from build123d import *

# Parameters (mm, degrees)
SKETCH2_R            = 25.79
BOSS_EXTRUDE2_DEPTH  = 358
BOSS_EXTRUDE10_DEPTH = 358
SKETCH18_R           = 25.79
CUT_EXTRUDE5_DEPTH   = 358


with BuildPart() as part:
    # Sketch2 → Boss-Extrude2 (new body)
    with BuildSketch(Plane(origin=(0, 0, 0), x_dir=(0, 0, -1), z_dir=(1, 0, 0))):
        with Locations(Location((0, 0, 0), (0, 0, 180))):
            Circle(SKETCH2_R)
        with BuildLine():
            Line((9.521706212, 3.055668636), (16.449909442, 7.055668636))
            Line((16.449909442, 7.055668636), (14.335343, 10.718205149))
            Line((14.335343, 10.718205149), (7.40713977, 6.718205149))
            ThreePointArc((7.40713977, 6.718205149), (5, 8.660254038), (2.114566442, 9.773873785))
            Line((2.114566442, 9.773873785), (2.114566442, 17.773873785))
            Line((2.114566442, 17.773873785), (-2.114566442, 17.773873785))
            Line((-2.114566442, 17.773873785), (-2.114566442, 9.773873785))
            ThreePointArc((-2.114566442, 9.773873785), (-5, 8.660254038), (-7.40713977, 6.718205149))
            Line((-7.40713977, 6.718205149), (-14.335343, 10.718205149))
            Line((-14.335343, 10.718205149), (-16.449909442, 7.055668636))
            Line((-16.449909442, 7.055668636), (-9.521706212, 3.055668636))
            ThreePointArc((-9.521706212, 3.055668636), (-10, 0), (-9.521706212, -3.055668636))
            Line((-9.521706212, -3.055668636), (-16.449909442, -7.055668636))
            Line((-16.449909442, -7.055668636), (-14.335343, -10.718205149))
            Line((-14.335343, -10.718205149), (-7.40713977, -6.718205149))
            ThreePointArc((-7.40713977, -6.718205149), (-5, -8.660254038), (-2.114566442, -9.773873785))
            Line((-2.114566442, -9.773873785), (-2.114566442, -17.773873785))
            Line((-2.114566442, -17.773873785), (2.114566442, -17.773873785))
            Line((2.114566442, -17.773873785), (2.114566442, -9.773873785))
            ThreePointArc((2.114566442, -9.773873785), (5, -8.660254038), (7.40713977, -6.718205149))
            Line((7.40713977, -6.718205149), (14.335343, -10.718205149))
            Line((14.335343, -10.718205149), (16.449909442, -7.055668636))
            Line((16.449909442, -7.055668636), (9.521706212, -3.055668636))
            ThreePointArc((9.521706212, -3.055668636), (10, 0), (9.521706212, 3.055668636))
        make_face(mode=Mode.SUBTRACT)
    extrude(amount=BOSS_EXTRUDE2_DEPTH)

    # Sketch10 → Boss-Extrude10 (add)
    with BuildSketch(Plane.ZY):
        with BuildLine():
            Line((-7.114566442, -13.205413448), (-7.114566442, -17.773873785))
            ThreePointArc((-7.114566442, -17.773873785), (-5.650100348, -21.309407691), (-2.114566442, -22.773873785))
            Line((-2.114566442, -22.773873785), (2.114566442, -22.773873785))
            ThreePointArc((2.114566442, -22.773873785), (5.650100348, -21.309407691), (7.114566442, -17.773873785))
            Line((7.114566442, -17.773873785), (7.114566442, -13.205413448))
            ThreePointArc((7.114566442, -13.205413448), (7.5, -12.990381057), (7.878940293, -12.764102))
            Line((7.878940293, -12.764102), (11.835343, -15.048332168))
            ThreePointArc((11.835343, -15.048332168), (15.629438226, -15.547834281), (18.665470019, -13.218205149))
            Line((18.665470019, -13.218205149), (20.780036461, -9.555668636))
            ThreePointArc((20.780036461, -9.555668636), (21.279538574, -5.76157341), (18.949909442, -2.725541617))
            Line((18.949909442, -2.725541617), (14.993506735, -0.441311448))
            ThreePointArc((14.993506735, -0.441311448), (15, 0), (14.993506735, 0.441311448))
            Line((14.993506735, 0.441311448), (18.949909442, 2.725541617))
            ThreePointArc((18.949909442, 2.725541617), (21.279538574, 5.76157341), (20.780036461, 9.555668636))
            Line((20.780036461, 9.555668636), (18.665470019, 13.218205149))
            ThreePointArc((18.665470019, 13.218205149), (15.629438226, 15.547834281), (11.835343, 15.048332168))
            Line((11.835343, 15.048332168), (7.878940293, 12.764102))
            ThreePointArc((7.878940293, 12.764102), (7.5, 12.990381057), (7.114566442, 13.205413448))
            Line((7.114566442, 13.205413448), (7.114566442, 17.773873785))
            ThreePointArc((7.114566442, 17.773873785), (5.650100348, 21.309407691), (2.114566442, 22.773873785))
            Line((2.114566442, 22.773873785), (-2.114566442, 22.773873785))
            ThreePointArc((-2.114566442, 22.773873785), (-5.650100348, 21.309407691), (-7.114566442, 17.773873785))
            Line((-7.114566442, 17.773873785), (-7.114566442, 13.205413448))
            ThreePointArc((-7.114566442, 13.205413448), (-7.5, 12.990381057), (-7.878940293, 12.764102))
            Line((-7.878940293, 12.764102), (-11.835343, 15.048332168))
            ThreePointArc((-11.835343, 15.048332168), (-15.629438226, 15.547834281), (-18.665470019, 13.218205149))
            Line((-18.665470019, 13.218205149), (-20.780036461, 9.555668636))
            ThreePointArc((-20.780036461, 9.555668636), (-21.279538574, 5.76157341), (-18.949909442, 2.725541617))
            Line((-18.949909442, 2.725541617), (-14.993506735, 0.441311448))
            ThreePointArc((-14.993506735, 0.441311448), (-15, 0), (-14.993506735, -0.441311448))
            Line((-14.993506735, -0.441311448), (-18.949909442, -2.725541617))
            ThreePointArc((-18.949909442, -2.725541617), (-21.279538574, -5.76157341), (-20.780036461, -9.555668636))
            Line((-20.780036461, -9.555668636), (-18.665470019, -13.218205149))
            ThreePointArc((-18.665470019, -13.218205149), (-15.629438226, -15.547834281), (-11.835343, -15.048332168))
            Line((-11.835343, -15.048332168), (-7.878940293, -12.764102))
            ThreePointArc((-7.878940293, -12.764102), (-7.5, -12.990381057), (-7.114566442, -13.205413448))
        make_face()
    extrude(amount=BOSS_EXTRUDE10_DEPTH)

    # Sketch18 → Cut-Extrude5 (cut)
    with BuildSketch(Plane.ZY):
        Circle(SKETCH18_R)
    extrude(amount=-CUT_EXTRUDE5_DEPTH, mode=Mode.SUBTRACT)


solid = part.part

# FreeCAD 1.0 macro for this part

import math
import FreeCAD as App
import Part
import Sketcher

V = App.Vector
Q = App.Units.Quantity

doc = App.newDocument("Part")
params = doc.addObject("Spreadsheet::Sheet", "Params")
for row, (alias, value) in enumerate([
    ("sketch1_radius", "10 mm"),
    ("sketch1_diameter", "51.58 mm"),
    ("sketch1_width", "8 mm"),
    ("sketch1_length", "8 mm"),
    ("pad1_length", "358 mm"),
    ("sketch2_radius", "5 mm"),
    ("sketch2_radius2", "14.999999 mm"),
    ("pad2_length", "358 mm"),
    ("sketch3_diameter", "51.58 mm"),
    ("pocket1_length", "358 mm"),
], start=1):
    params.set(f"A{row}", alias)
    params.set(f"B{row}", "=" + value)
    params.setAlias(f"B{row}", alias)

body = doc.addObject("PartDesign::Body", "Body")

# Sketch on YZ plane
sketch1 = doc.addObject("Sketcher::SketchObject", "Sketch")
body.addObject(sketch1)
sketch1.AttachmentSupport = (doc.YZ_Plane, [""])
sketch1.MapMode = "FlatFace"
sketch1.addGeometry([
    Part.Circle(V(0, 0, 0), V(0, 0, 1), 25.79),  # 0
    Part.LineSegment(V(7.055669, -16.449909, 0), V(3.055669, -9.521706, 0)),  # 1
    Part.ArcOfCircle(Part.Circle(V(0, 0, 0), V(0, 0, 1), 10), math.radians(-107.792271), math.radians(-72.207729)),  # 2
    Part.LineSegment(V(-3.055669, -9.521706, 0), V(-7.055669, -16.449909, 0)),  # 3
    Part.LineSegment(V(-7.055669, -16.449909, 0), V(-10.718205, -14.335343, 0)),  # 4
    Part.LineSegment(V(-10.718205, -14.335343, 0), V(-6.718205, -7.40714, 0)),  # 5
    Part.ArcOfCircle(Part.Circle(V(0, 0, 0), V(0, 0, 1), 10), math.radians(-167.792271), math.radians(-132.207729)),  # 6
    Part.LineSegment(V(-9.773874, -2.114566, 0), V(-17.773874, -2.114566, 0)),  # 7
    Part.LineSegment(V(-17.773874, -2.114566, 0), V(-17.773874, 2.114566, 0)),  # 8
    Part.LineSegment(V(-17.773874, 2.114566, 0), V(-9.773874, 2.114566, 0)),  # 9
    Part.ArcOfCircle(Part.Circle(V(0, 0, 0), V(0, 0, 1), 10), math.radians(132.207729), math.radians(167.792271)),  # 10
    Part.LineSegment(V(-6.718205, 7.40714, 0), V(-10.718205, 14.335343, 0)),  # 11
    Part.LineSegment(V(-10.718205, 14.335343, 0), V(-7.055669, 16.449909, 0)),  # 12
    Part.LineSegment(V(-7.055669, 16.449909, 0), V(-3.055669, 9.521706, 0)),  # 13
    Part.ArcOfCircle(Part.Circle(V(0, 0, 0), V(0, 0, 1), 10), math.radians(72.207729), math.radians(107.792271)),  # 14
    Part.LineSegment(V(3.055669, 9.521706, 0), V(7.055669, 16.449909, 0)),  # 15
    Part.LineSegment(V(7.055669, 16.449909, 0), V(10.718205, 14.335343, 0)),  # 16
    Part.LineSegment(V(10.718205, 14.335343, 0), V(6.718205, 7.40714, 0)),  # 17
    Part.ArcOfCircle(Part.Circle(V(0, 0, 0), V(0, 0, 1), 10), math.radians(12.207729), math.radians(47.792271)),  # 18
    Part.LineSegment(V(9.773874, 2.114566, 0), V(17.773874, 2.114566, 0)),  # 19
    Part.LineSegment(V(17.773874, 2.114566, 0), V(17.773874, -2.114566, 0)),  # 20
    Part.LineSegment(V(17.773874, -2.114566, 0), V(9.773874, -2.114566, 0)),  # 21
    Part.ArcOfCircle(Part.Circle(V(0, 0, 0), V(0, 0, 1), 10), math.radians(-47.792271), math.radians(-12.207729)),  # 22
    Part.LineSegment(V(6.718205, -7.40714, 0), V(10.718205, -14.335343, 0)),  # 23
    Part.LineSegment(V(10.718205, -14.335343, 0), V(7.055669, -16.449909, 0)),  # 24
], False)
sketch1.addConstraint([
    Sketcher.Constraint("Coincident", 1, 2, 2, 2),
    Sketcher.Constraint("Coincident", 2, 1, 3, 1),
    Sketcher.Constraint("Coincident", 3, 2, 4, 1),
    Sketcher.Constraint("Coincident", 4, 2, 5, 1),
    Sketcher.Constraint("Coincident", 5, 2, 6, 2),
    Sketcher.Constraint("Coincident", 6, 1, 7, 1),
    Sketcher.Constraint("Coincident", 7, 2, 8, 1),
    Sketcher.Constraint("Coincident", 8, 2, 9, 1),
    Sketcher.Constraint("Coincident", 9, 2, 10, 2),
    Sketcher.Constraint("Coincident", 10, 1, 11, 1),
    Sketcher.Constraint("Coincident", 11, 2, 12, 1),
    Sketcher.Constraint("Coincident", 12, 2, 13, 1),
    Sketcher.Constraint("Coincident", 13, 2, 14, 2),
    Sketcher.Constraint("Coincident", 14, 1, 15, 1),
    Sketcher.Constraint("Coincident", 15, 2, 16, 1),
    Sketcher.Constraint("Coincident", 16, 2, 17, 1),
    Sketcher.Constraint("Coincident", 17, 2, 18, 2),
    Sketcher.Constraint("Coincident", 18, 1, 19, 1),
    Sketcher.Constraint("Coincident", 19, 2, 20, 1),
    Sketcher.Constraint("Coincident", 20, 2, 21, 1),
    Sketcher.Constraint("Coincident", 21, 2, 22, 2),
    Sketcher.Constraint("Coincident", 22, 1, 23, 1),
    Sketcher.Constraint("Coincident", 23, 2, 24, 1),
    Sketcher.Constraint("Coincident", 24, 2, 1, 1),
    Sketcher.Constraint("Horizontal", 7),
    Sketcher.Constraint("Vertical", 8),
    Sketcher.Constraint("Horizontal", 9),
    Sketcher.Constraint("Horizontal", 19),
    Sketcher.Constraint("Vertical", 20),
    Sketcher.Constraint("Horizontal", 21),
    Sketcher.Constraint("Coincident", 0, 3, -1, 1),
    Sketcher.Constraint("Coincident", 2, 3, -1, 1),
    Sketcher.Constraint("Coincident", 6, 3, -1, 1),
    Sketcher.Constraint("Coincident", 10, 3, -1, 1),
    Sketcher.Constraint("Coincident", 14, 3, -1, 1),
    Sketcher.Constraint("Coincident", 18, 3, -1, 1),
    Sketcher.Constraint("Coincident", 22, 3, -1, 1),
    Sketcher.Constraint("Equal", 2, 6),
    Sketcher.Constraint("Equal", 6, 10),
    Sketcher.Constraint("Equal", 10, 14),
    Sketcher.Constraint("Equal", 14, 18),
    Sketcher.Constraint("Equal", 18, 22),
    Sketcher.Constraint("Symmetric", 3, 2, 15, 2, -1, 1),
    Sketcher.Constraint("Symmetric", 4, 2, 16, 2, -1, 1),
    Sketcher.Constraint("Symmetric", 7, 2, 19, 2, -1, 1),
    Sketcher.Constraint("Symmetric", 11, 2, 23, 2, -1, 1),
    Sketcher.Constraint("Symmetric", 12, 2, 24, 2, -1, 1),
    Sketcher.Constraint("Symmetric", 12, 2, 15, 2, -2),
    Sketcher.Constraint("Symmetric", 11, 2, 16, 2, -2),
    Sketcher.Constraint("Perpendicular", 3, 4),
    Sketcher.Constraint("Perpendicular", 4, 5),
    Sketcher.Constraint("Parallel", 1, 11),
    Sketcher.Constraint("Perpendicular", 11, 12),
    Sketcher.Constraint("Perpendicular", 12, 13),
    Sketcher.Constraint("Parallel", 5, 15),
    Sketcher.Constraint("Perpendicular", 16, 17),
    Sketcher.Constraint("Parallel", 13, 23),
    Sketcher.Constraint("Horizontal", 9, 2, 18, 1),
    Sketcher.Constraint("Horizontal", 7, 2, 20, 2),
    Sketcher.Constraint("Equal", 3, 5),
    Sketcher.Constraint("Radius", 2, Q("10 mm")),
    Sketcher.Constraint("Diameter", 0, Q("51.58 mm")),
    Sketcher.Constraint("DistanceX", 7, 2, 7, 1, Q("8 mm")),
    Sketcher.Constraint("Angle", 1, Q("120 deg")),
    Sketcher.Constraint("Distance", 1, Q("8 mm")),
    Sketcher.Constraint("DistanceY", 8, 1, 8, 2, Q("4.229133 mm")),
    Sketcher.Constraint("DistanceX", -1, 1, 1, 2, Q("3.055669 mm")),
])
sketch1.setExpression("Constraints[60]", "Params.sketch1_radius")
sketch1.setExpression("Constraints[61]", "Params.sketch1_diameter")
sketch1.setExpression("Constraints[62]", "Params.sketch1_width")
sketch1.setExpression("Constraints[64]", "Params.sketch1_length")
pad1 = doc.addObject("PartDesign::Pad", "Pad")
body.addObject(pad1)
pad1.Profile = sketch1
pad1.setExpression("Length", "Params.pad1_length")

# Sketch on YZ plane
sketch2 = doc.addObject("Sketcher::SketchObject", "Sketch001")
body.addObject(sketch2)
sketch2.AttachmentSupport = (doc.YZ_Plane, [""])
sketch2.MapMode = "FlatFace"
sketch2.addGeometry([
    Part.LineSegment(V(-13.205413, -7.114566, 0), V(-17.773874, -7.114566, 0)),  # 0
    Part.ArcOfCircle(Part.Circle(V(-17.773874, -2.114566, 0), V(0, 0, 1), 5), math.radians(180), math.radians(270)),  # 1
    Part.LineSegment(V(-22.773874, -2.114566, 0), V(-22.773874, 2.114566, 0)),  # 2
    Part.ArcOfCircle(Part.Circle(V(-17.773874, 2.114566, 0), V(0, 0, 1), 5), math.radians(90), math.radians(180)),  # 3
    Part.LineSegment(V(-17.773874, 7.114566, 0), V(-13.205413, 7.114566, 0)),  # 4
    Part.ArcOfCircle(Part.Circle(V(0, 0, 0), V(0, 0, 1), 14.999999), math.radians(148.314071), math.radians(151.685929)),  # 5
    Part.LineSegment(V(-12.764102, 7.87894, 0), V(-15.048332, 11.835343, 0)),  # 6
    Part.ArcOfCircle(Part.Circle(V(-10.718205, 14.335343, 0), V(0, 0, 1), 5), math.radians(120), math.radians(210)),  # 7
    Part.LineSegment(V(-13.218205, 18.66547, 0), V(-9.555669, 20.780036, 0)),  # 8
    Part.ArcOfCircle(Part.Circle(V(-7.055669, 16.449909, 0), V(0, 0, 1), 5), math.radians(30), math.radians(120)),  # 9
    Part.LineSegment(V(-2.725542, 18.949909, 0), V(-0.441311, 14.993507, 0)),  # 10
    Part.ArcOfCircle(Part.Circle(V(0, -0.000001, 0), V(0, 0, 1), 15.000001), math.radians(88.314071), math.radians(91.685929)),  # 11
    Part.LineSegment(V(0.441311, 14.993507, 0), V(2.725542, 18.949909, 0)),  # 12
    Part.ArcOfCircle(Part.Circle(V(7.055669, 16.449909, 0), V(0, 0, 1), 5), math.radians(60), math.radians(150)),  # 13
    Part.LineSegment(V(9.555669, 20.780036, 0), V(13.218205, 18.66547, 0)),  # 14
    Part.ArcOfCircle(Part.Circle(V(10.718205, 14.335343, 0), V(0, 0, 1), 5), math.radians(-30), math.radians(60)),  # 15
    Part.LineSegment(V(15.048332, 11.835343, 0), V(12.764102, 7.87894, 0)),  # 16
    Part.ArcOfCircle(Part.Circle(V(0, 0, 0), V(0, 0, 1), 14.999999), math.radians(28.314071), math.radians(31.685929)),  # 17
    Part.LineSegment(V(13.205413, 7.114566, 0), V(17.773874, 7.114566, 0)),  # 18
    Part.ArcOfCircle(Part.Circle(V(17.773874, 2.114566, 0), V(0, 0, 1), 5), math.radians(0), math.radians(90)),  # 19
    Part.LineSegment(V(22.773874, 2.114566, 0), V(22.773874, -2.114566, 0)),  # 20
    Part.ArcOfCircle(Part.Circle(V(17.773874, -2.114566, 0), V(0, 0, 1), 5), math.radians(-90), math.radians(0)),  # 21
    Part.LineSegment(V(17.773874, -7.114566, 0), V(13.205413, -7.114566, 0)),  # 22
    Part.ArcOfCircle(Part.Circle(V(0, 0, 0), V(0, 0, 1), 14.999999), math.radians(-31.685929), math.radians(-28.314071)),  # 23
    Part.LineSegment(V(12.764102, -7.87894, 0), V(15.048332, -11.835343, 0)),  # 24
    Part.ArcOfCircle(Part.Circle(V(10.718205, -14.335343, 0), V(0, 0, 1), 5), math.radians(-60), math.radians(30)),  # 25
    Part.LineSegment(V(13.218205, -18.66547, 0), V(9.555669, -20.780036, 0)),  # 26
    Part.ArcOfCircle(Part.Circle(V(7.055669, -16.449909, 0), V(0, 0, 1), 5), math.radians(-150), math.radians(-60)),  # 27
    Part.LineSegment(V(2.725542, -18.949909, 0), V(0.441311, -14.993507, 0)),  # 28
    Part.ArcOfCircle(Part.Circle(V(0, 0.000001, 0), V(0, 0, 1), 15.000001), math.radians(-91.685929), math.radians(-88.314071)),  # 29
    Part.LineSegment(V(-0.441311, -14.993507, 0), V(-2.725542, -18.949909, 0)),  # 30
    Part.ArcOfCircle(Part.Circle(V(-7.055669, -16.449909, 0), V(0, 0, 1), 5), math.radians(-120), math.radians(-30)),  # 31
    Part.LineSegment(V(-9.555669, -20.780036, 0), V(-13.218205, -18.66547, 0)),  # 32
    Part.ArcOfCircle(Part.Circle(V(-10.718205, -14.335343, 0), V(0, 0, 1), 5), math.radians(150), math.radians(240)),  # 33
    Part.LineSegment(V(-15.048332, -11.835343, 0), V(-12.764102, -7.87894, 0)),  # 34
    Part.ArcOfCircle(Part.Circle(V(0, 0, 0), V(0, 0, 1), 14.999999), math.radians(-151.685929), math.radians(-148.314071)),  # 35
], False)
sketch2.addConstraint([
    Sketcher.Constraint("Tangent", 0, 2, 1, 2),
    Sketcher.Constraint("Tangent", 1, 1, 2, 1),
    Sketcher.Constraint("Tangent", 2, 2, 3, 2),
    Sketcher.Constraint("Tangent", 3, 1, 4, 1),
    Sketcher.Constraint("Coincident", 4, 2, 5, 2),
    Sketcher.Constraint("Coincident", 5, 1, 6, 1),
    Sketcher.Constraint("Tangent", 6, 2, 7, 2),
    Sketcher.Constraint("Tangent", 7, 1, 8, 1),
    Sketcher.Constraint("Tangent", 8, 2, 9, 2),
    Sketcher.Constraint("Tangent", 9, 1, 10, 1),
    Sketcher.Constraint("Coincident", 10, 2, 11, 2),
    Sketcher.Constraint("Coincident", 11, 1, 12, 1),
    Sketcher.Constraint("Tangent", 12, 2, 13, 2),
    Sketcher.Constraint("Tangent", 13, 1, 14, 1),
    Sketcher.Constraint("Tangent", 14, 2, 15, 2),
    Sketcher.Constraint("Tangent", 15, 1, 16, 1),
    Sketcher.Constraint("Coincident", 16, 2, 17, 2),
    Sketcher.Constraint("Coincident", 17, 1, 18, 1),
    Sketcher.Constraint("Tangent", 18, 2, 19, 2),
    Sketcher.Constraint("Tangent", 19, 1, 20, 1),
    Sketcher.Constraint("Tangent", 20, 2, 21, 2),
    Sketcher.Constraint("Tangent", 21, 1, 22, 1),
    Sketcher.Constraint("Coincident", 22, 2, 23, 2),
    Sketcher.Constraint("Coincident", 23, 1, 24, 1),
    Sketcher.Constraint("Tangent", 24, 2, 25, 2),
    Sketcher.Constraint("Tangent", 25, 1, 26, 1),
    Sketcher.Constraint("Tangent", 26, 2, 27, 2),
    Sketcher.Constraint("Tangent", 27, 1, 28, 1),
    Sketcher.Constraint("Coincident", 28, 2, 29, 2),
    Sketcher.Constraint("Coincident", 29, 1, 30, 1),
    Sketcher.Constraint("Tangent", 30, 2, 31, 2),
    Sketcher.Constraint("Tangent", 31, 1, 32, 1),
    Sketcher.Constraint("Tangent", 32, 2, 33, 2),
    Sketcher.Constraint("Tangent", 33, 1, 34, 1),
    Sketcher.Constraint("Coincident", 34, 2, 35, 2),
    Sketcher.Constraint("Coincident", 35, 1, 0, 1),
    Sketcher.Constraint("Horizontal", 0),
    Sketcher.Constraint("Vertical", 2),
    Sketcher.Constraint("Horizontal", 4),
    Sketcher.Constraint("Horizontal", 18),
    Sketcher.Constraint("Vertical", 20),
    Sketcher.Constraint("Horizontal", 22),
    Sketcher.Constraint("Coincident", 5, 3, -1, 1),
    Sketcher.Constraint("Coincident", 11, 3, -1, 1),
    Sketcher.Constraint("Coincident", 17, 3, -1, 1),
    Sketcher.Constraint("Coincident", 23, 3, -1, 1),
    Sketcher.Constraint("Coincident", 29, 3, -1, 1),
    Sketcher.Constraint("Coincident", 35, 3, -1, 1),
    Sketcher.Constraint("Equal", 1, 3),
    Sketcher.Constraint("Equal", 3, 7),
    Sketcher.Constraint("Equal", 7, 9),
    Sketcher.Constraint("Equal", 5, 11),
    Sketcher.Constraint("Equal", 9, 13),
    Sketcher.Constraint("Equal", 13, 15),
    Sketcher.Constraint("Equal", 11, 17),
    Sketcher.Constraint("Equal", 15, 19),
    Sketcher.Constraint("Equal", 19, 21),
    Sketcher.Constraint("Equal", 17, 23),
    Sketcher.Constraint("Equal", 21, 25),
    Sketcher.Constraint("Equal", 25, 27),
    Sketcher.Constraint("Equal", 23, 29),
    Sketcher.Constraint("Equal", 27, 31),
    Sketcher.Constraint("Equal", 31, 33),
    Sketcher.Constraint("Equal", 29, 35),
    Sketcher.Constraint("Symmetric", 1, 3, 19, 3, -1, 1),
    Sketcher.Constraint("Symmetric", 7, 3, 25, 3, -1, 1),
    Sketcher.Constraint("Symmetric", 9, 3, 27, 3, -1, 1),
    Sketcher.Constraint("Symmetric", 13, 3, 31, 3, -1, 1),
    Sketcher.Constraint("Symmetric", 15, 3, 33, 3, -1, 1),
    Sketcher.Constraint("Symmetric", 9, 3, 13, 3, -2),
    Sketcher.Constraint("Symmetric", 7, 3, 15, 3, -2),
    Sketcher.Constraint("Perpendicular", 6, 8),
    Sketcher.Constraint("Perpendicular", 8, 10),
    Sketcher.Constraint("Perpendicular", 12, 14),
    Sketcher.Constraint("Perpendicular", 14, 16),
    Sketcher.Constraint("Parallel", 10, 24),
    Sketcher.Constraint("Perpendicular", 26, 28),
    Sketcher.Constraint("Parallel", 16, 30),
    Sketcher.Constraint("Perpendicular", 32, 34),
    Sketcher.Constraint("Horizontal", 3, 3, 19, 3),
    Sketcher.Constraint("Horizontal", 1, 3, 21, 3),
    Sketcher.Constraint("Equal", 6, 10),
    Sketcher.Constraint("Radius", 1, Q("5 mm")),
    Sketcher.Constraint("Radius", 5, Q("14.999999 mm")),
    Sketcher.Constraint("Angle", 6, Q("120 deg")),
    Sketcher.Constraint("DistanceX", 0, 2, 0, 1, Q("4.56846 mm")),
    Sketcher.Constraint("DistanceX", 5, 1, -1, 1, Q("12.764102 mm")),
    Sketcher.Constraint("Distance", 6, Q("4.56846 mm")),
    Sketcher.Constraint("DistanceY", 2, 1, 2, 2, Q("4.229133 mm")),
])
sketch2.setExpression("Constraints[82]", "Params.sketch2_radius")
sketch2.setExpression("Constraints[83]", "Params.sketch2_radius2")
pad2 = doc.addObject("PartDesign::Pad", "Pad001")
body.addObject(pad2)
pad2.Profile = sketch2
pad2.setExpression("Length", "Params.pad2_length")
pad2.Reversed = True

# Sketch on YZ plane
sketch3 = doc.addObject("Sketcher::SketchObject", "Sketch002")
body.addObject(sketch3)
sketch3.AttachmentSupport = (doc.YZ_Plane, [""])
sketch3.MapMode = "FlatFace"
sketch3.addGeometry(Part.Circle(V(0, 0, 0), V(0, 0, 1), 25.79), False)
sketch3.addConstraint([
    Sketcher.Constraint("Coincident", 0, 3, -1, 1),
    Sketcher.Constraint("Diameter", 0, Q("51.58 mm")),
])
sketch3.setExpression("Constraints[1]", "Params.sketch3_diameter")
pocket1 = doc.addObject("PartDesign::Pocket", "Pocket")
body.addObject(pocket1)
pocket1.Profile = sketch3
pocket1.setExpression("Length", "Params.pocket1_length")
pocket1.Reversed = True

doc.recompute()
